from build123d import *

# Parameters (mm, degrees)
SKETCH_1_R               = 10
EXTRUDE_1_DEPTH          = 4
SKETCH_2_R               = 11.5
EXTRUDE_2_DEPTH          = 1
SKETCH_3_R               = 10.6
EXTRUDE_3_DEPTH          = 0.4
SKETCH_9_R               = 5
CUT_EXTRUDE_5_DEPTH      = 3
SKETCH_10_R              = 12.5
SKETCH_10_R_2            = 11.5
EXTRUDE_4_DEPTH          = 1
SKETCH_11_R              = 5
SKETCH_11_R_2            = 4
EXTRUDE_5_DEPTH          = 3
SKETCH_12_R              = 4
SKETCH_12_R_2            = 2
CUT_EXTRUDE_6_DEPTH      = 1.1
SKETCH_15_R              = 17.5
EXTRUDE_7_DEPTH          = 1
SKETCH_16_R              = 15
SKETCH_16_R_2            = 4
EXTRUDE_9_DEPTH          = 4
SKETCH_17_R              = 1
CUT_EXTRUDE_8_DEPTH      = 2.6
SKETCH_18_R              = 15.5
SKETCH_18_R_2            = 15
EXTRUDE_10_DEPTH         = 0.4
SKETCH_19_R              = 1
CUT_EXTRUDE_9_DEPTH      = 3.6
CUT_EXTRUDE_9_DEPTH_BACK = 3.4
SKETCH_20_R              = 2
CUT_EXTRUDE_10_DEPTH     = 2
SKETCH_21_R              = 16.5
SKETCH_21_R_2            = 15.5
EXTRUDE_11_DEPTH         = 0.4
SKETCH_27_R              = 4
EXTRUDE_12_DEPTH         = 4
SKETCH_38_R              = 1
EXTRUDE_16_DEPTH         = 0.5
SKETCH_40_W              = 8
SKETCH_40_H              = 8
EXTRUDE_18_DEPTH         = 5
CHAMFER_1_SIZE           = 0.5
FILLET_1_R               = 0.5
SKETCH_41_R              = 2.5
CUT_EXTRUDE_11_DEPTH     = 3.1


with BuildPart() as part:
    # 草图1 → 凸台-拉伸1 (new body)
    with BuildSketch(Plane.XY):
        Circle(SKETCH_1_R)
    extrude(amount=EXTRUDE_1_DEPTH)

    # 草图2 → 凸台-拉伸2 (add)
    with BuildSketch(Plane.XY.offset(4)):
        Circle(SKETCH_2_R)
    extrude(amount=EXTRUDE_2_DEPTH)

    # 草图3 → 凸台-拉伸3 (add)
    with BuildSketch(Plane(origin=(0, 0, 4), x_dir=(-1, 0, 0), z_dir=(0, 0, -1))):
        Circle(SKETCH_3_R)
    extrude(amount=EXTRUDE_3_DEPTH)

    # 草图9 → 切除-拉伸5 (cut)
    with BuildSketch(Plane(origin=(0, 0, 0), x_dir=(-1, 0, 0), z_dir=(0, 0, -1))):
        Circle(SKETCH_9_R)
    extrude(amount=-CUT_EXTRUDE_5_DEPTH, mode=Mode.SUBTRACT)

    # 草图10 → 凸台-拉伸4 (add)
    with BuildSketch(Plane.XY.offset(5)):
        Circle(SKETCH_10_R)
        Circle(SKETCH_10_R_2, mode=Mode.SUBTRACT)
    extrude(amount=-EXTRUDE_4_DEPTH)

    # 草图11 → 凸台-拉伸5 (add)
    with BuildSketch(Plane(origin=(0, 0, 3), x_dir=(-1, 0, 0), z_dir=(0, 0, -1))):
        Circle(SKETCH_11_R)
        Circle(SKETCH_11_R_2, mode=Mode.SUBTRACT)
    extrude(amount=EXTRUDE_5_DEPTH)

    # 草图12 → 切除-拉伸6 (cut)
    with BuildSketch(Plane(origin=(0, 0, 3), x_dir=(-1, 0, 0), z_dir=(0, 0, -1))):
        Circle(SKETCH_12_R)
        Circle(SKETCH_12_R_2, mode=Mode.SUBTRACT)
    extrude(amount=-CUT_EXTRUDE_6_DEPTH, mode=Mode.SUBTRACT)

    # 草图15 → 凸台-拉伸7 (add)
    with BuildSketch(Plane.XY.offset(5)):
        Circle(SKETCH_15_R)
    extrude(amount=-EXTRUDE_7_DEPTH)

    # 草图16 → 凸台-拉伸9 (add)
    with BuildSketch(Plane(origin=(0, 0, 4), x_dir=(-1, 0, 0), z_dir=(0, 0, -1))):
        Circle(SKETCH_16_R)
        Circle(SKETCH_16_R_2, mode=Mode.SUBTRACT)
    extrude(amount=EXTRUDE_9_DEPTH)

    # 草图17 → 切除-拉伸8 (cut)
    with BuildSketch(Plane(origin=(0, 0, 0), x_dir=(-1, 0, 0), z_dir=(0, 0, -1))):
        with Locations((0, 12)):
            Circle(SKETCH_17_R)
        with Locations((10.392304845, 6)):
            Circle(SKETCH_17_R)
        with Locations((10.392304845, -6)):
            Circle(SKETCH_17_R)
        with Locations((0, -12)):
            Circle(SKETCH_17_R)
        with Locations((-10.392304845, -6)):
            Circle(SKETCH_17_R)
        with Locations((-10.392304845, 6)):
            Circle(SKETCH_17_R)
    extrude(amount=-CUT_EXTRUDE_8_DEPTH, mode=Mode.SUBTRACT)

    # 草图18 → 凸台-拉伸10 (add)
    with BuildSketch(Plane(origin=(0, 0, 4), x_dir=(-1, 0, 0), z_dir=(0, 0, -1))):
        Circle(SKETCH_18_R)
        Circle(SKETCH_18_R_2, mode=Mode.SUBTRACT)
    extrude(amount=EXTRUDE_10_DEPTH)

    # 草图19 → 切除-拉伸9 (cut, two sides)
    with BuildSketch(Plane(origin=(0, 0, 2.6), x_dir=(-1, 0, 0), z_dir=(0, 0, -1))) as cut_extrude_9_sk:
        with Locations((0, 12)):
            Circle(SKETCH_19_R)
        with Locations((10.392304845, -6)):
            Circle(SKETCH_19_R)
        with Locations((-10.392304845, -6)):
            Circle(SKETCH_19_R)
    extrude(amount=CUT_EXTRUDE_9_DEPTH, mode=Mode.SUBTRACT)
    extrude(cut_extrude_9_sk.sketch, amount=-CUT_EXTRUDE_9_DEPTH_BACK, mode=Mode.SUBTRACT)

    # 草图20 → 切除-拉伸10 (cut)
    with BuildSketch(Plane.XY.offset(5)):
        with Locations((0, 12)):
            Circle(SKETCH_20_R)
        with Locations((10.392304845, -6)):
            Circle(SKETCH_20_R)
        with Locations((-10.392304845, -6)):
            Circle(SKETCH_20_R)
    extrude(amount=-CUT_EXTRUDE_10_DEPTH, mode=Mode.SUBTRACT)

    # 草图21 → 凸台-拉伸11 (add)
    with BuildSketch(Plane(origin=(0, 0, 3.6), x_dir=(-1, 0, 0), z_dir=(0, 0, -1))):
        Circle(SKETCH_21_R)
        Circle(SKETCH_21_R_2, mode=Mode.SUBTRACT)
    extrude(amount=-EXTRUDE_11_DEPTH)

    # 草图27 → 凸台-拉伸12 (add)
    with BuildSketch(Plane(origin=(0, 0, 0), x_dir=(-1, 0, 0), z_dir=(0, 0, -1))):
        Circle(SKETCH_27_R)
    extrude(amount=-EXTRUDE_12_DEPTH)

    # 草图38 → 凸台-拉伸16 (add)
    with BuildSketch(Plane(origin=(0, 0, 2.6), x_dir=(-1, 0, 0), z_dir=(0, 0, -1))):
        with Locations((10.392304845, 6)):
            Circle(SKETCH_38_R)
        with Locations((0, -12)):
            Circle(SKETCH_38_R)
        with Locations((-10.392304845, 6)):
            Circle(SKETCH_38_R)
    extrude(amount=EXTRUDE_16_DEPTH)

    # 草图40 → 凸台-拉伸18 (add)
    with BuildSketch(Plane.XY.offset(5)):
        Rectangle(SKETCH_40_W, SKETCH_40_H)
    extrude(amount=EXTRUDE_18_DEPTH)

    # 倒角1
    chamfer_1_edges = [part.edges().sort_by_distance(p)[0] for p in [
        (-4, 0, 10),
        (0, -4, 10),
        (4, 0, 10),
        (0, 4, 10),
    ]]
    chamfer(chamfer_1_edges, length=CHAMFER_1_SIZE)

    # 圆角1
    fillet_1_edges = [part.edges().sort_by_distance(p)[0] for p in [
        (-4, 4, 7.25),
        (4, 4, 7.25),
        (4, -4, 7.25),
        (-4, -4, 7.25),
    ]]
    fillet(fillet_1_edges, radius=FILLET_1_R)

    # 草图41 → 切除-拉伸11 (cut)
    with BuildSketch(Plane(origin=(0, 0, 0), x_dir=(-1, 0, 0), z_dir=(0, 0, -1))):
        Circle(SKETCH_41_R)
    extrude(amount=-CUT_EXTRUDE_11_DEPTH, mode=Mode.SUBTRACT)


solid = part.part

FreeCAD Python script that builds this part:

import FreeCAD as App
import Part
import Sketcher

V = App.Vector
Q = App.Units.Quantity


def edges_at(feature, points):
    """Names of the edges that pass closest to the given points."""
    edges = feature.Shape.Edges
    near = lambda p: min(range(len(edges)), key=lambda i: edges[i].distToShape(Part.Vertex(*p))[0])
    return sorted({f"Edge{near(p) + 1}" for p in points})

doc = App.newDocument("Part")
body = doc.addObject("PartDesign::Body", "Body")

# Sketch on XY plane
sketch1 = body.newObject("Sketcher::SketchObject", "Sketch")
sketch1.AttachmentSupport = (doc.getObject("XY_Plane"), [""])
sketch1.MapMode = "FlatFace"
sketch1.addGeometry(Part.Circle(V(0, 0, 0), V(0, 0, 1), 10), False)
sketch1.addConstraint([
    Sketcher.Constraint("Coincident", 0, 3, -1, 1),
    Sketcher.Constraint("Diameter", 0, Q("20 mm")),
])
pad1 = body.newObject("PartDesign::Pad", "Pad")
pad1.Profile = sketch1
pad1.Length = 4

# Sketch on XY plane
sketch2 = body.newObject("Sketcher::SketchObject", "Sketch001")
sketch2.AttachmentSupport = (doc.getObject("XY_Plane"), [""])
sketch2.MapMode = "FlatFace"
sketch2.AttachmentOffset = App.Placement(V(0, 0, 4), App.Rotation())
sketch2.addGeometry(Part.Circle(V(0, 0, 0), V(0, 0, 1), 12), False)
sketch2.addConstraint([
    Sketcher.Constraint("Coincident", 0, 3, -1, 1),
    Sketcher.Constraint("Diameter", 0, Q("23 mm")),
])
pad2 = body.newObject("PartDesign::Pad", "Pad001")
pad2.Profile = sketch2
pad2.Length = 1

# Sketch on XY plane
sketch3 = body.newObject("Sketcher::SketchObject", "Sketch002")
sketch3.AttachmentSupport = (doc.getObject("XY_Plane"), [""])
sketch3.MapMode = "FlatFace"
sketch3.AttachmentOffset = App.Placement(V(0, 0, 4), App.Rotation())
sketch3.addGeometry(Part.Circle(V(0, 0, 0), V(0, 0, 1), 11), False)
sketch3.addConstraint([
    Sketcher.Constraint("Coincident", 0, 3, -1, 1),
    Sketcher.Constraint("Diameter", 0, Q("21.2 mm")),
])
pad3 = body.newObject("PartDesign::Pad", "Pad002")
pad3.Profile = sketch3
pad3.Length = 0.4
pad3.Reversed = True

# Sketch on XY plane
sketch4 = body.newObject("Sketcher::SketchObject", "Sketch003")
sketch4.AttachmentSupport = (doc.getObject("XY_Plane"), [""])
sketch4.MapMode = "FlatFace"
sketch4.addGeometry(Part.Circle(V(0, 0, 0), V(0, 0, 1), 5), False)
sketch4.addConstraint([
    Sketcher.Constraint("Coincident", 0, 3, -1, 1),
    Sketcher.Constraint("Diameter", 0, Q("10 mm")),
])
pocket1 = body.newObject("PartDesign::Pocket", "Pocket")
pocket1.Profile = sketch4
pocket1.Length = 3
pocket1.Reversed = True

# Sketch on XY plane
sketch5 = body.newObject("Sketcher::SketchObject", "Sketch004")
sketch5.AttachmentSupport = (doc.getObject("XY_Plane"), [""])
sketch5.MapMode = "FlatFace"
sketch5.AttachmentOffset = App.Placement(V(0, 0, 5), App.Rotation())
sketch5.addGeometry([
    Part.Circle(V(0, 0, 0), V(0, 0, 1), 12),
    Part.Circle(V(0, 0, 0), V(0, 0, 1), 12),
], False)
sketch5.addConstraint([
    Sketcher.Constraint("Coincident", 0, 3, -1, 1),
    Sketcher.Constraint("Coincident", 1, 3, -1, 1),
    Sketcher.Constraint("Diameter", 0, Q("25 mm")),
    Sketcher.Constraint("Diameter", 1, Q("23 mm")),
])
pad4 = body.newObject("PartDesign::Pad", "Pad003")
pad4.Profile = sketch5
pad4.Length = 1
pad4.Reversed = True

# Sketch on XY plane
sketch6 = body.newObject("Sketcher::SketchObject", "Sketch005")
sketch6.AttachmentSupport = (doc.getObject("XY_Plane"), [""])
sketch6.MapMode = "FlatFace"
sketch6.AttachmentOffset = App.Placement(V(0, 0, 3), App.Rotation())
sketch6.addGeometry([
    Part.Circle(V(0, 0, 0), V(0, 0, 1), 5),
    Part.Circle(V(0, 0, 0), V(0, 0, 1), 4),
], False)
sketch6.addConstraint([
    Sketcher.Constraint("Coincident", 0, 3, -1, 1),
    Sketcher.Constraint("Coincident", 1, 3, -1, 1),
    Sketcher.Constraint("Diameter", 0, Q("10 mm")),
    Sketcher.Constraint("Diameter", 1, Q("8 mm")),
])
pad5 = body.newObject("PartDesign::Pad", "Pad004")
pad5.Profile = sketch6
pad5.Length = 3
pad5.Reversed = True

# Sketch on XY plane
sketch7 = body.newObject("Sketcher::SketchObject", "Sketch006")
sketch7.AttachmentSupport = (doc.getObject("XY_Plane"), [""])
sketch7.MapMode = "FlatFace"
sketch7.AttachmentOffset = App.Placement(V(0, 0, 3), App.Rotation())
sketch7.addGeometry([
    Part.Circle(V(0, 0, 0), V(0, 0, 1), 4),
    Part.Circle(V(0, 0, 0), V(0, 0, 1), 2),
], False)
sketch7.addConstraint([
    Sketcher.Constraint("Coincident", 0, 3, -1, 1),
    Sketcher.Constraint("Coincident", 1, 3, -1, 1),
    Sketcher.Constraint("Diameter", 0, Q("8 mm")),
    Sketcher.Constraint("Diameter", 1, Q("4 mm")),
])
pocket2 = body.newObject("PartDesign::Pocket", "Pocket001")
pocket2.Profile = sketch7
pocket2.Length = 1.1
pocket2.Reversed = True

# Sketch on XY plane
sketch8 = body.newObject("Sketcher::SketchObject", "Sketch007")
sketch8.AttachmentSupport = (doc.getObject("XY_Plane"), [""])
sketch8.MapMode = "FlatFace"
sketch8.AttachmentOffset = App.Placement(V(0, 0, 5), App.Rotation())
sketch8.addGeometry(Part.Circle(V(0, 0, 0), V(0, 0, 1), 18), False)
sketch8.addConstraint([
    Sketcher.Constraint("Coincident", 0, 3, -1, 1),
    Sketcher.Constraint("Diameter", 0, Q("35 mm")),
])
pad6 = body.newObject("PartDesign::Pad", "Pad005")
pad6.Profile = sketch8
pad6.Length = 1
pad6.Reversed = True

# Sketch on XY plane
sketch9 = body.newObject("Sketcher::SketchObject", "Sketch008")
sketch9.AttachmentSupport = (doc.getObject("XY_Plane"), [""])
sketch9.MapMode = "FlatFace"
sketch9.AttachmentOffset = App.Placement(V(0, 0, 4), App.Rotation())
sketch9.addGeometry([
    Part.Circle(V(0, 0, 0), V(0, 0, 1), 15),
    Part.Circle(V(0, 0, 0), V(0, 0, 1), 4),
], False)
sketch9.addConstraint([
    Sketcher.Constraint("Coincident", 0, 3, -1, 1),
    Sketcher.Constraint("Coincident", 1, 3, -1, 1),
    Sketcher.Constraint("Diameter", 0, Q("30 mm")),
    Sketcher.Constraint("Diameter", 1, Q("8 mm")),
])
pad7 = body.newObject("PartDesign::Pad", "Pad006")
pad7.Profile = sketch9
pad7.Length = 4
pad7.Reversed = True

# Sketch on XY plane
sketch10 = body.newObject("Sketcher::SketchObject", "Sketch009")
sketch10.AttachmentSupport = (doc.getObject("XY_Plane"), [""])
sketch10.MapMode = "FlatFace"
sketch10.addGeometry([
    Part.Circle(V(0, 12, 0), V(0, 0, 1), 1),  # 0
    Part.Circle(V(-10.4, 6, 0), V(0, 0, 1), 1),  # 1
    Part.Circle(V(-10.4, -6, 0), V(0, 0, 1), 1),  # 2
    Part.Circle(V(0, -12, 0), V(0, 0, 1), 1),  # 3
    Part.Circle(V(10.4, -6, 0), V(0, 0, 1), 1),  # 4
    Part.Circle(V(10.4, 6, 0), V(0, 0, 1), 1),  # 5
], False)
sketch10.addConstraint([
    Sketcher.Constraint("Equal", 0, 1),
    Sketcher.Constraint("Equal", 1, 2),
    Sketcher.Constraint("Equal", 2, 3),
    Sketcher.Constraint("Equal", 3, 4),
    Sketcher.Constraint("Equal", 4, 5),
    Sketcher.Constraint("Symmetric", 0, 3, 3, 3, -1, 1),
    Sketcher.Constraint("Symmetric", 1, 3, 4, 3, -1, 1),
    Sketcher.Constraint("Symmetric", 2, 3, 5, 3, -1, 1),
    Sketcher.Constraint("Symmetric", 2, 3, 4, 3, -2),
    Sketcher.Constraint("PointOnObject", 0, 3, -2),
    Sketcher.Constraint("Diameter", 0, Q("2 mm")),
    Sketcher.Constraint("DistanceY", -1, 1, 0, 3, Q("12 mm")),
    Sketcher.Constraint("DistanceY", -1, 1, 1, 3, Q("6 mm")),
    Sketcher.Constraint("DistanceX", 2, 3, 4, 3, Q("20.78461 mm")),
])
pocket3 = body.newObject("PartDesign::Pocket", "Pocket002")
pocket3.Profile = sketch10
pocket3.Length = 2.6
pocket3.Reversed = True

# Sketch on XY plane
sketch11 = body.newObject("Sketcher::SketchObject", "Sketch010")
sketch11.AttachmentSupport = (doc.getObject("XY_Plane"), [""])
sketch11.MapMode = "FlatFace"
sketch11.AttachmentOffset = App.Placement(V(0, 0, 4), App.Rotation())
sketch11.addGeometry([
    Part.Circle(V(0, 0, 0), V(0, 0, 1), 16),
    Part.Circle(V(0, 0, 0), V(0, 0, 1), 15),
], False)
sketch11.addConstraint([
    Sketcher.Constraint("Coincident", 0, 3, -1, 1),
    Sketcher.Constraint("Coincident", 1, 3, -1, 1),
    Sketcher.Constraint("Diameter", 0, Q("31 mm")),
    Sketcher.Constraint("Diameter", 1, Q("30 mm")),
])
pad8 = body.newObject("PartDesign::Pad", "Pad007")
pad8.Profile = sketch11
pad8.Length = 0.4
pad8.Reversed = True

# Sketch on XY plane
sketch12 = body.newObject("Sketcher::SketchObject", "Sketch011")
sketch12.AttachmentSupport = (doc.getObject("XY_Plane"), [""])
sketch12.MapMode = "FlatFace"
sketch12.AttachmentOffset = App.Placement(V(0, 0, 2.6), App.Rotation())
sketch12.addGeometry([
    Part.Circle(V(0, 12, 0), V(0, 0, 1), 1),
    Part.Circle(V(-10.4, -6, 0), V(0, 0, 1), 1),
    Part.Circle(V(10.4, -6, 0), V(0, 0, 1), 1),
], False)
sketch12.addConstraint([
    Sketcher.Constraint("Equal", 0, 1),
    Sketcher.Constraint("Equal", 1, 2),
    Sketcher.Constraint("Symmetric", 1, 3, 2, 3, -2),
    Sketcher.Constraint("PointOnObject", 0, 3, -2),
    Sketcher.Constraint("Diameter", 0, Q("2 mm")),
    Sketcher.Constraint("DistanceY", -1, 1, 0, 3, Q("12 mm")),
    Sketcher.Constraint("DistanceY", 1, 3, -1, 1, Q("6 mm")),
    Sketcher.Constraint("DistanceX", 1, 3, 2, 3, Q("20.78461 mm")),
])
pocket4 = body.newObject("PartDesign::Pocket", "Pocket003")
pocket4.Profile = sketch12
pocket4.Type = "ThroughAll"
pocket4.Midplane = True

# Sketch on XY plane
sketch13 = body.newObject("Sketcher::SketchObject", "Sketch012")
sketch13.AttachmentSupport = (doc.getObject("XY_Plane"), [""])
sketch13.MapMode = "FlatFace"
sketch13.AttachmentOffset = App.Placement(V(0, 0, 5), App.Rotation())
sketch13.addGeometry([
    Part.Circle(V(0, 12, 0), V(0, 0, 1), 2),
    Part.Circle(V(10.4, -6, 0), V(0, 0, 1), 2),
    Part.Circle(V(-10.4, -6, 0), V(0, 0, 1), 2),
], False)
sketch13.addConstraint([
    Sketcher.Constraint("Equal", 0, 1),
    Sketcher.Constraint("Equal", 1, 2),
    Sketcher.Constraint("Symmetric", 1, 3, 2, 3, -2),
    Sketcher.Constraint("PointOnObject", 0, 3, -2),
    Sketcher.Constraint("Diameter", 0, Q("4 mm")),
    Sketcher.Constraint("DistanceY", -1, 1, 0, 3, Q("12 mm")),
    Sketcher.Constraint("DistanceY", 1, 3, -1, 1, Q("6 mm")),
    Sketcher.Constraint("DistanceX", 2, 3, 1, 3, Q("20.78461 mm")),
])
pocket5 = body.newObject("PartDesign::Pocket", "Pocket004")
pocket5.Profile = sketch13
pocket5.Length = 2

# Sketch on XY plane
sketch14 = body.newObject("Sketcher::SketchObject", "Sketch013")
sketch14.AttachmentSupport = (doc.getObject("XY_Plane"), [""])
sketch14.MapMode = "FlatFace"
sketch14.AttachmentOffset = App.Placement(V(0, 0, 3.6), App.Rotation())
sketch14.addGeometry([
    Part.Circle(V(0, 0, 0), V(0, 0, 1), 16),
    Part.Circle(V(0, 0, 0), V(0, 0, 1), 16),
], False)
sketch14.addConstraint([
    Sketcher.Constraint("Coincident", 0, 3, -1, 1),
    Sketcher.Constraint("Coincident", 1, 3, -1, 1),
    Sketcher.Constraint("Diameter", 0, Q("33 mm")),
    Sketcher.Constraint("Diameter", 1, Q("31 mm")),
])
pad9 = body.newObject("PartDesign::Pad", "Pad008")
pad9.Profile = sketch14
pad9.Length = 0.4

# Sketch on XY plane
sketch15 = body.newObject("Sketcher::SketchObject", "Sketch014")
sketch15.AttachmentSupport = (doc.getObject("XY_Plane"), [""])
sketch15.MapMode = "FlatFace"
sketch15.addGeometry(Part.Circle(V(0, 0, 0), V(0, 0, 1), 4), False)
sketch15.addConstraint([
    Sketcher.Constraint("Coincident", 0, 3, -1, 1),
    Sketcher.Constraint("Diameter", 0, Q("8 mm")),
])
pad10 = body.newObject("PartDesign::Pad", "Pad009")
pad10.Profile = sketch15
pad10.Length = 4

# Sketch on XY plane
sketch16 = body.newObject("Sketcher::SketchObject", "Sketch015")
sketch16.AttachmentSupport = (doc.getObject("XY_Plane"), [""])
sketch16.MapMode = "FlatFace"
sketch16.AttachmentOffset = App.Placement(V(0, 0, 2.6), App.Rotation())
sketch16.addGeometry([
    Part.Circle(V(-10.4, 6, 0), V(0, 0, 1), 1),
    Part.Circle(V(0, -12, 0), V(0, 0, 1), 1),
    Part.Circle(V(10.4, 6, 0), V(0, 0, 1), 1),
], False)
sketch16.addConstraint([
    Sketcher.Constraint("Equal", 0, 1),
    Sketcher.Constraint("Equal", 1, 2),
    Sketcher.Constraint("Symmetric", 0, 3, 2, 3, -2),
    Sketcher.Constraint("PointOnObject", 1, 3, -2),
    Sketcher.Constraint("Diameter", 0, Q("2 mm")),
    Sketcher.Constraint("DistanceY", -1, 1, 0, 3, Q("6 mm")),
    Sketcher.Constraint("DistanceY", 1, 3, -1, 1, Q("12 mm")),
    Sketcher.Constraint("DistanceX", 0, 3, 2, 3, Q("20.78461 mm")),
])
pad11 = body.newObject("PartDesign::Pad", "Pad010")
pad11.Profile = sketch16
pad11.Length = 0.5
pad11.Reversed = True

# Sketch on XY plane
sketch17 = body.newObject("Sketcher::SketchObject", "Sketch016")
sketch17.AttachmentSupport = (doc.getObject("XY_Plane"), [""])
sketch17.MapMode = "FlatFace"
sketch17.AttachmentOffset = App.Placement(V(0, 0, 5), App.Rotation())
sketch17.addGeometry([
    Part.LineSegment(V(-4, 4, 0), V(-4, -4, 0)),
    Part.LineSegment(V(-4, -4, 0), V(4, -4, 0)),
    Part.LineSegment(V(4, -4, 0), V(4, 4, 0)),
    Part.LineSegment(V(4, 4, 0), V(-4, 4, 0)),
], False)
sketch17.addConstraint([
    Sketcher.Constraint("Coincident", 0, 2, 1, 1),
    Sketcher.Constraint("Coincident", 1, 2, 2, 1),
    Sketcher.Constraint("Coincident", 2, 2, 3, 1),
    Sketcher.Constraint("Coincident", 3, 2, 0, 1),
    Sketcher.Constraint("Vertical", 0),
    Sketcher.Constraint("Horizontal", 1),
    Sketcher.Constraint("Vertical", 2),
    Sketcher.Constraint("Horizontal", 3),
    Sketcher.Constraint("Symmetric", 0, 2, 2, 2, -1, 1),
    Sketcher.Constraint("Equal", 3, 0),
    Sketcher.Constraint("DistanceX", 1, 1, 1, 2, Q("8 mm")),
])
pad12 = body.newObject("PartDesign::Pad", "Pad011")
pad12.Profile = sketch17
pad12.Length = 5
doc.recompute()

chamfer = body.newObject("PartDesign::Chamfer", "Chamfer")
chamfer.Base = (pad12, edges_at(pad12, [
    (-4, 0, 10),
    (0, -4, 10),
    (4, 0, 10),
    (0, 4, 10),
]))
chamfer.Size = 0.5
doc.recompute()

fillet = body.newObject("PartDesign::Fillet", "Fillet")
fillet.Base = (chamfer, edges_at(chamfer, [
    (-4, 4, 7.25),
    (4, 4, 7.25),
    (4, -4, 7.25),
    (-4, -4, 7.25),
]))
fillet.Radius = 0.5

# Sketch on XY plane
sketch18 = body.newObject("Sketcher::SketchObject", "Sketch017")
sketch18.AttachmentSupport = (doc.getObject("XY_Plane"), [""])
sketch18.MapMode = "FlatFace"
sketch18.addGeometry(Part.Circle(V(0, 0, 0), V(0, 0, 1), 2.5), False)
sketch18.addConstraint([
    Sketcher.Constraint("Coincident", 0, 3, -1, 1),
    Sketcher.Constraint("Diameter", 0, Q("5 mm")),
])
pocket6 = body.newObject("PartDesign::Pocket", "Pocket005")
pocket6.Profile = sketch18
pocket6.Length = 3.1
pocket6.Reversed = True

doc.recompute()
